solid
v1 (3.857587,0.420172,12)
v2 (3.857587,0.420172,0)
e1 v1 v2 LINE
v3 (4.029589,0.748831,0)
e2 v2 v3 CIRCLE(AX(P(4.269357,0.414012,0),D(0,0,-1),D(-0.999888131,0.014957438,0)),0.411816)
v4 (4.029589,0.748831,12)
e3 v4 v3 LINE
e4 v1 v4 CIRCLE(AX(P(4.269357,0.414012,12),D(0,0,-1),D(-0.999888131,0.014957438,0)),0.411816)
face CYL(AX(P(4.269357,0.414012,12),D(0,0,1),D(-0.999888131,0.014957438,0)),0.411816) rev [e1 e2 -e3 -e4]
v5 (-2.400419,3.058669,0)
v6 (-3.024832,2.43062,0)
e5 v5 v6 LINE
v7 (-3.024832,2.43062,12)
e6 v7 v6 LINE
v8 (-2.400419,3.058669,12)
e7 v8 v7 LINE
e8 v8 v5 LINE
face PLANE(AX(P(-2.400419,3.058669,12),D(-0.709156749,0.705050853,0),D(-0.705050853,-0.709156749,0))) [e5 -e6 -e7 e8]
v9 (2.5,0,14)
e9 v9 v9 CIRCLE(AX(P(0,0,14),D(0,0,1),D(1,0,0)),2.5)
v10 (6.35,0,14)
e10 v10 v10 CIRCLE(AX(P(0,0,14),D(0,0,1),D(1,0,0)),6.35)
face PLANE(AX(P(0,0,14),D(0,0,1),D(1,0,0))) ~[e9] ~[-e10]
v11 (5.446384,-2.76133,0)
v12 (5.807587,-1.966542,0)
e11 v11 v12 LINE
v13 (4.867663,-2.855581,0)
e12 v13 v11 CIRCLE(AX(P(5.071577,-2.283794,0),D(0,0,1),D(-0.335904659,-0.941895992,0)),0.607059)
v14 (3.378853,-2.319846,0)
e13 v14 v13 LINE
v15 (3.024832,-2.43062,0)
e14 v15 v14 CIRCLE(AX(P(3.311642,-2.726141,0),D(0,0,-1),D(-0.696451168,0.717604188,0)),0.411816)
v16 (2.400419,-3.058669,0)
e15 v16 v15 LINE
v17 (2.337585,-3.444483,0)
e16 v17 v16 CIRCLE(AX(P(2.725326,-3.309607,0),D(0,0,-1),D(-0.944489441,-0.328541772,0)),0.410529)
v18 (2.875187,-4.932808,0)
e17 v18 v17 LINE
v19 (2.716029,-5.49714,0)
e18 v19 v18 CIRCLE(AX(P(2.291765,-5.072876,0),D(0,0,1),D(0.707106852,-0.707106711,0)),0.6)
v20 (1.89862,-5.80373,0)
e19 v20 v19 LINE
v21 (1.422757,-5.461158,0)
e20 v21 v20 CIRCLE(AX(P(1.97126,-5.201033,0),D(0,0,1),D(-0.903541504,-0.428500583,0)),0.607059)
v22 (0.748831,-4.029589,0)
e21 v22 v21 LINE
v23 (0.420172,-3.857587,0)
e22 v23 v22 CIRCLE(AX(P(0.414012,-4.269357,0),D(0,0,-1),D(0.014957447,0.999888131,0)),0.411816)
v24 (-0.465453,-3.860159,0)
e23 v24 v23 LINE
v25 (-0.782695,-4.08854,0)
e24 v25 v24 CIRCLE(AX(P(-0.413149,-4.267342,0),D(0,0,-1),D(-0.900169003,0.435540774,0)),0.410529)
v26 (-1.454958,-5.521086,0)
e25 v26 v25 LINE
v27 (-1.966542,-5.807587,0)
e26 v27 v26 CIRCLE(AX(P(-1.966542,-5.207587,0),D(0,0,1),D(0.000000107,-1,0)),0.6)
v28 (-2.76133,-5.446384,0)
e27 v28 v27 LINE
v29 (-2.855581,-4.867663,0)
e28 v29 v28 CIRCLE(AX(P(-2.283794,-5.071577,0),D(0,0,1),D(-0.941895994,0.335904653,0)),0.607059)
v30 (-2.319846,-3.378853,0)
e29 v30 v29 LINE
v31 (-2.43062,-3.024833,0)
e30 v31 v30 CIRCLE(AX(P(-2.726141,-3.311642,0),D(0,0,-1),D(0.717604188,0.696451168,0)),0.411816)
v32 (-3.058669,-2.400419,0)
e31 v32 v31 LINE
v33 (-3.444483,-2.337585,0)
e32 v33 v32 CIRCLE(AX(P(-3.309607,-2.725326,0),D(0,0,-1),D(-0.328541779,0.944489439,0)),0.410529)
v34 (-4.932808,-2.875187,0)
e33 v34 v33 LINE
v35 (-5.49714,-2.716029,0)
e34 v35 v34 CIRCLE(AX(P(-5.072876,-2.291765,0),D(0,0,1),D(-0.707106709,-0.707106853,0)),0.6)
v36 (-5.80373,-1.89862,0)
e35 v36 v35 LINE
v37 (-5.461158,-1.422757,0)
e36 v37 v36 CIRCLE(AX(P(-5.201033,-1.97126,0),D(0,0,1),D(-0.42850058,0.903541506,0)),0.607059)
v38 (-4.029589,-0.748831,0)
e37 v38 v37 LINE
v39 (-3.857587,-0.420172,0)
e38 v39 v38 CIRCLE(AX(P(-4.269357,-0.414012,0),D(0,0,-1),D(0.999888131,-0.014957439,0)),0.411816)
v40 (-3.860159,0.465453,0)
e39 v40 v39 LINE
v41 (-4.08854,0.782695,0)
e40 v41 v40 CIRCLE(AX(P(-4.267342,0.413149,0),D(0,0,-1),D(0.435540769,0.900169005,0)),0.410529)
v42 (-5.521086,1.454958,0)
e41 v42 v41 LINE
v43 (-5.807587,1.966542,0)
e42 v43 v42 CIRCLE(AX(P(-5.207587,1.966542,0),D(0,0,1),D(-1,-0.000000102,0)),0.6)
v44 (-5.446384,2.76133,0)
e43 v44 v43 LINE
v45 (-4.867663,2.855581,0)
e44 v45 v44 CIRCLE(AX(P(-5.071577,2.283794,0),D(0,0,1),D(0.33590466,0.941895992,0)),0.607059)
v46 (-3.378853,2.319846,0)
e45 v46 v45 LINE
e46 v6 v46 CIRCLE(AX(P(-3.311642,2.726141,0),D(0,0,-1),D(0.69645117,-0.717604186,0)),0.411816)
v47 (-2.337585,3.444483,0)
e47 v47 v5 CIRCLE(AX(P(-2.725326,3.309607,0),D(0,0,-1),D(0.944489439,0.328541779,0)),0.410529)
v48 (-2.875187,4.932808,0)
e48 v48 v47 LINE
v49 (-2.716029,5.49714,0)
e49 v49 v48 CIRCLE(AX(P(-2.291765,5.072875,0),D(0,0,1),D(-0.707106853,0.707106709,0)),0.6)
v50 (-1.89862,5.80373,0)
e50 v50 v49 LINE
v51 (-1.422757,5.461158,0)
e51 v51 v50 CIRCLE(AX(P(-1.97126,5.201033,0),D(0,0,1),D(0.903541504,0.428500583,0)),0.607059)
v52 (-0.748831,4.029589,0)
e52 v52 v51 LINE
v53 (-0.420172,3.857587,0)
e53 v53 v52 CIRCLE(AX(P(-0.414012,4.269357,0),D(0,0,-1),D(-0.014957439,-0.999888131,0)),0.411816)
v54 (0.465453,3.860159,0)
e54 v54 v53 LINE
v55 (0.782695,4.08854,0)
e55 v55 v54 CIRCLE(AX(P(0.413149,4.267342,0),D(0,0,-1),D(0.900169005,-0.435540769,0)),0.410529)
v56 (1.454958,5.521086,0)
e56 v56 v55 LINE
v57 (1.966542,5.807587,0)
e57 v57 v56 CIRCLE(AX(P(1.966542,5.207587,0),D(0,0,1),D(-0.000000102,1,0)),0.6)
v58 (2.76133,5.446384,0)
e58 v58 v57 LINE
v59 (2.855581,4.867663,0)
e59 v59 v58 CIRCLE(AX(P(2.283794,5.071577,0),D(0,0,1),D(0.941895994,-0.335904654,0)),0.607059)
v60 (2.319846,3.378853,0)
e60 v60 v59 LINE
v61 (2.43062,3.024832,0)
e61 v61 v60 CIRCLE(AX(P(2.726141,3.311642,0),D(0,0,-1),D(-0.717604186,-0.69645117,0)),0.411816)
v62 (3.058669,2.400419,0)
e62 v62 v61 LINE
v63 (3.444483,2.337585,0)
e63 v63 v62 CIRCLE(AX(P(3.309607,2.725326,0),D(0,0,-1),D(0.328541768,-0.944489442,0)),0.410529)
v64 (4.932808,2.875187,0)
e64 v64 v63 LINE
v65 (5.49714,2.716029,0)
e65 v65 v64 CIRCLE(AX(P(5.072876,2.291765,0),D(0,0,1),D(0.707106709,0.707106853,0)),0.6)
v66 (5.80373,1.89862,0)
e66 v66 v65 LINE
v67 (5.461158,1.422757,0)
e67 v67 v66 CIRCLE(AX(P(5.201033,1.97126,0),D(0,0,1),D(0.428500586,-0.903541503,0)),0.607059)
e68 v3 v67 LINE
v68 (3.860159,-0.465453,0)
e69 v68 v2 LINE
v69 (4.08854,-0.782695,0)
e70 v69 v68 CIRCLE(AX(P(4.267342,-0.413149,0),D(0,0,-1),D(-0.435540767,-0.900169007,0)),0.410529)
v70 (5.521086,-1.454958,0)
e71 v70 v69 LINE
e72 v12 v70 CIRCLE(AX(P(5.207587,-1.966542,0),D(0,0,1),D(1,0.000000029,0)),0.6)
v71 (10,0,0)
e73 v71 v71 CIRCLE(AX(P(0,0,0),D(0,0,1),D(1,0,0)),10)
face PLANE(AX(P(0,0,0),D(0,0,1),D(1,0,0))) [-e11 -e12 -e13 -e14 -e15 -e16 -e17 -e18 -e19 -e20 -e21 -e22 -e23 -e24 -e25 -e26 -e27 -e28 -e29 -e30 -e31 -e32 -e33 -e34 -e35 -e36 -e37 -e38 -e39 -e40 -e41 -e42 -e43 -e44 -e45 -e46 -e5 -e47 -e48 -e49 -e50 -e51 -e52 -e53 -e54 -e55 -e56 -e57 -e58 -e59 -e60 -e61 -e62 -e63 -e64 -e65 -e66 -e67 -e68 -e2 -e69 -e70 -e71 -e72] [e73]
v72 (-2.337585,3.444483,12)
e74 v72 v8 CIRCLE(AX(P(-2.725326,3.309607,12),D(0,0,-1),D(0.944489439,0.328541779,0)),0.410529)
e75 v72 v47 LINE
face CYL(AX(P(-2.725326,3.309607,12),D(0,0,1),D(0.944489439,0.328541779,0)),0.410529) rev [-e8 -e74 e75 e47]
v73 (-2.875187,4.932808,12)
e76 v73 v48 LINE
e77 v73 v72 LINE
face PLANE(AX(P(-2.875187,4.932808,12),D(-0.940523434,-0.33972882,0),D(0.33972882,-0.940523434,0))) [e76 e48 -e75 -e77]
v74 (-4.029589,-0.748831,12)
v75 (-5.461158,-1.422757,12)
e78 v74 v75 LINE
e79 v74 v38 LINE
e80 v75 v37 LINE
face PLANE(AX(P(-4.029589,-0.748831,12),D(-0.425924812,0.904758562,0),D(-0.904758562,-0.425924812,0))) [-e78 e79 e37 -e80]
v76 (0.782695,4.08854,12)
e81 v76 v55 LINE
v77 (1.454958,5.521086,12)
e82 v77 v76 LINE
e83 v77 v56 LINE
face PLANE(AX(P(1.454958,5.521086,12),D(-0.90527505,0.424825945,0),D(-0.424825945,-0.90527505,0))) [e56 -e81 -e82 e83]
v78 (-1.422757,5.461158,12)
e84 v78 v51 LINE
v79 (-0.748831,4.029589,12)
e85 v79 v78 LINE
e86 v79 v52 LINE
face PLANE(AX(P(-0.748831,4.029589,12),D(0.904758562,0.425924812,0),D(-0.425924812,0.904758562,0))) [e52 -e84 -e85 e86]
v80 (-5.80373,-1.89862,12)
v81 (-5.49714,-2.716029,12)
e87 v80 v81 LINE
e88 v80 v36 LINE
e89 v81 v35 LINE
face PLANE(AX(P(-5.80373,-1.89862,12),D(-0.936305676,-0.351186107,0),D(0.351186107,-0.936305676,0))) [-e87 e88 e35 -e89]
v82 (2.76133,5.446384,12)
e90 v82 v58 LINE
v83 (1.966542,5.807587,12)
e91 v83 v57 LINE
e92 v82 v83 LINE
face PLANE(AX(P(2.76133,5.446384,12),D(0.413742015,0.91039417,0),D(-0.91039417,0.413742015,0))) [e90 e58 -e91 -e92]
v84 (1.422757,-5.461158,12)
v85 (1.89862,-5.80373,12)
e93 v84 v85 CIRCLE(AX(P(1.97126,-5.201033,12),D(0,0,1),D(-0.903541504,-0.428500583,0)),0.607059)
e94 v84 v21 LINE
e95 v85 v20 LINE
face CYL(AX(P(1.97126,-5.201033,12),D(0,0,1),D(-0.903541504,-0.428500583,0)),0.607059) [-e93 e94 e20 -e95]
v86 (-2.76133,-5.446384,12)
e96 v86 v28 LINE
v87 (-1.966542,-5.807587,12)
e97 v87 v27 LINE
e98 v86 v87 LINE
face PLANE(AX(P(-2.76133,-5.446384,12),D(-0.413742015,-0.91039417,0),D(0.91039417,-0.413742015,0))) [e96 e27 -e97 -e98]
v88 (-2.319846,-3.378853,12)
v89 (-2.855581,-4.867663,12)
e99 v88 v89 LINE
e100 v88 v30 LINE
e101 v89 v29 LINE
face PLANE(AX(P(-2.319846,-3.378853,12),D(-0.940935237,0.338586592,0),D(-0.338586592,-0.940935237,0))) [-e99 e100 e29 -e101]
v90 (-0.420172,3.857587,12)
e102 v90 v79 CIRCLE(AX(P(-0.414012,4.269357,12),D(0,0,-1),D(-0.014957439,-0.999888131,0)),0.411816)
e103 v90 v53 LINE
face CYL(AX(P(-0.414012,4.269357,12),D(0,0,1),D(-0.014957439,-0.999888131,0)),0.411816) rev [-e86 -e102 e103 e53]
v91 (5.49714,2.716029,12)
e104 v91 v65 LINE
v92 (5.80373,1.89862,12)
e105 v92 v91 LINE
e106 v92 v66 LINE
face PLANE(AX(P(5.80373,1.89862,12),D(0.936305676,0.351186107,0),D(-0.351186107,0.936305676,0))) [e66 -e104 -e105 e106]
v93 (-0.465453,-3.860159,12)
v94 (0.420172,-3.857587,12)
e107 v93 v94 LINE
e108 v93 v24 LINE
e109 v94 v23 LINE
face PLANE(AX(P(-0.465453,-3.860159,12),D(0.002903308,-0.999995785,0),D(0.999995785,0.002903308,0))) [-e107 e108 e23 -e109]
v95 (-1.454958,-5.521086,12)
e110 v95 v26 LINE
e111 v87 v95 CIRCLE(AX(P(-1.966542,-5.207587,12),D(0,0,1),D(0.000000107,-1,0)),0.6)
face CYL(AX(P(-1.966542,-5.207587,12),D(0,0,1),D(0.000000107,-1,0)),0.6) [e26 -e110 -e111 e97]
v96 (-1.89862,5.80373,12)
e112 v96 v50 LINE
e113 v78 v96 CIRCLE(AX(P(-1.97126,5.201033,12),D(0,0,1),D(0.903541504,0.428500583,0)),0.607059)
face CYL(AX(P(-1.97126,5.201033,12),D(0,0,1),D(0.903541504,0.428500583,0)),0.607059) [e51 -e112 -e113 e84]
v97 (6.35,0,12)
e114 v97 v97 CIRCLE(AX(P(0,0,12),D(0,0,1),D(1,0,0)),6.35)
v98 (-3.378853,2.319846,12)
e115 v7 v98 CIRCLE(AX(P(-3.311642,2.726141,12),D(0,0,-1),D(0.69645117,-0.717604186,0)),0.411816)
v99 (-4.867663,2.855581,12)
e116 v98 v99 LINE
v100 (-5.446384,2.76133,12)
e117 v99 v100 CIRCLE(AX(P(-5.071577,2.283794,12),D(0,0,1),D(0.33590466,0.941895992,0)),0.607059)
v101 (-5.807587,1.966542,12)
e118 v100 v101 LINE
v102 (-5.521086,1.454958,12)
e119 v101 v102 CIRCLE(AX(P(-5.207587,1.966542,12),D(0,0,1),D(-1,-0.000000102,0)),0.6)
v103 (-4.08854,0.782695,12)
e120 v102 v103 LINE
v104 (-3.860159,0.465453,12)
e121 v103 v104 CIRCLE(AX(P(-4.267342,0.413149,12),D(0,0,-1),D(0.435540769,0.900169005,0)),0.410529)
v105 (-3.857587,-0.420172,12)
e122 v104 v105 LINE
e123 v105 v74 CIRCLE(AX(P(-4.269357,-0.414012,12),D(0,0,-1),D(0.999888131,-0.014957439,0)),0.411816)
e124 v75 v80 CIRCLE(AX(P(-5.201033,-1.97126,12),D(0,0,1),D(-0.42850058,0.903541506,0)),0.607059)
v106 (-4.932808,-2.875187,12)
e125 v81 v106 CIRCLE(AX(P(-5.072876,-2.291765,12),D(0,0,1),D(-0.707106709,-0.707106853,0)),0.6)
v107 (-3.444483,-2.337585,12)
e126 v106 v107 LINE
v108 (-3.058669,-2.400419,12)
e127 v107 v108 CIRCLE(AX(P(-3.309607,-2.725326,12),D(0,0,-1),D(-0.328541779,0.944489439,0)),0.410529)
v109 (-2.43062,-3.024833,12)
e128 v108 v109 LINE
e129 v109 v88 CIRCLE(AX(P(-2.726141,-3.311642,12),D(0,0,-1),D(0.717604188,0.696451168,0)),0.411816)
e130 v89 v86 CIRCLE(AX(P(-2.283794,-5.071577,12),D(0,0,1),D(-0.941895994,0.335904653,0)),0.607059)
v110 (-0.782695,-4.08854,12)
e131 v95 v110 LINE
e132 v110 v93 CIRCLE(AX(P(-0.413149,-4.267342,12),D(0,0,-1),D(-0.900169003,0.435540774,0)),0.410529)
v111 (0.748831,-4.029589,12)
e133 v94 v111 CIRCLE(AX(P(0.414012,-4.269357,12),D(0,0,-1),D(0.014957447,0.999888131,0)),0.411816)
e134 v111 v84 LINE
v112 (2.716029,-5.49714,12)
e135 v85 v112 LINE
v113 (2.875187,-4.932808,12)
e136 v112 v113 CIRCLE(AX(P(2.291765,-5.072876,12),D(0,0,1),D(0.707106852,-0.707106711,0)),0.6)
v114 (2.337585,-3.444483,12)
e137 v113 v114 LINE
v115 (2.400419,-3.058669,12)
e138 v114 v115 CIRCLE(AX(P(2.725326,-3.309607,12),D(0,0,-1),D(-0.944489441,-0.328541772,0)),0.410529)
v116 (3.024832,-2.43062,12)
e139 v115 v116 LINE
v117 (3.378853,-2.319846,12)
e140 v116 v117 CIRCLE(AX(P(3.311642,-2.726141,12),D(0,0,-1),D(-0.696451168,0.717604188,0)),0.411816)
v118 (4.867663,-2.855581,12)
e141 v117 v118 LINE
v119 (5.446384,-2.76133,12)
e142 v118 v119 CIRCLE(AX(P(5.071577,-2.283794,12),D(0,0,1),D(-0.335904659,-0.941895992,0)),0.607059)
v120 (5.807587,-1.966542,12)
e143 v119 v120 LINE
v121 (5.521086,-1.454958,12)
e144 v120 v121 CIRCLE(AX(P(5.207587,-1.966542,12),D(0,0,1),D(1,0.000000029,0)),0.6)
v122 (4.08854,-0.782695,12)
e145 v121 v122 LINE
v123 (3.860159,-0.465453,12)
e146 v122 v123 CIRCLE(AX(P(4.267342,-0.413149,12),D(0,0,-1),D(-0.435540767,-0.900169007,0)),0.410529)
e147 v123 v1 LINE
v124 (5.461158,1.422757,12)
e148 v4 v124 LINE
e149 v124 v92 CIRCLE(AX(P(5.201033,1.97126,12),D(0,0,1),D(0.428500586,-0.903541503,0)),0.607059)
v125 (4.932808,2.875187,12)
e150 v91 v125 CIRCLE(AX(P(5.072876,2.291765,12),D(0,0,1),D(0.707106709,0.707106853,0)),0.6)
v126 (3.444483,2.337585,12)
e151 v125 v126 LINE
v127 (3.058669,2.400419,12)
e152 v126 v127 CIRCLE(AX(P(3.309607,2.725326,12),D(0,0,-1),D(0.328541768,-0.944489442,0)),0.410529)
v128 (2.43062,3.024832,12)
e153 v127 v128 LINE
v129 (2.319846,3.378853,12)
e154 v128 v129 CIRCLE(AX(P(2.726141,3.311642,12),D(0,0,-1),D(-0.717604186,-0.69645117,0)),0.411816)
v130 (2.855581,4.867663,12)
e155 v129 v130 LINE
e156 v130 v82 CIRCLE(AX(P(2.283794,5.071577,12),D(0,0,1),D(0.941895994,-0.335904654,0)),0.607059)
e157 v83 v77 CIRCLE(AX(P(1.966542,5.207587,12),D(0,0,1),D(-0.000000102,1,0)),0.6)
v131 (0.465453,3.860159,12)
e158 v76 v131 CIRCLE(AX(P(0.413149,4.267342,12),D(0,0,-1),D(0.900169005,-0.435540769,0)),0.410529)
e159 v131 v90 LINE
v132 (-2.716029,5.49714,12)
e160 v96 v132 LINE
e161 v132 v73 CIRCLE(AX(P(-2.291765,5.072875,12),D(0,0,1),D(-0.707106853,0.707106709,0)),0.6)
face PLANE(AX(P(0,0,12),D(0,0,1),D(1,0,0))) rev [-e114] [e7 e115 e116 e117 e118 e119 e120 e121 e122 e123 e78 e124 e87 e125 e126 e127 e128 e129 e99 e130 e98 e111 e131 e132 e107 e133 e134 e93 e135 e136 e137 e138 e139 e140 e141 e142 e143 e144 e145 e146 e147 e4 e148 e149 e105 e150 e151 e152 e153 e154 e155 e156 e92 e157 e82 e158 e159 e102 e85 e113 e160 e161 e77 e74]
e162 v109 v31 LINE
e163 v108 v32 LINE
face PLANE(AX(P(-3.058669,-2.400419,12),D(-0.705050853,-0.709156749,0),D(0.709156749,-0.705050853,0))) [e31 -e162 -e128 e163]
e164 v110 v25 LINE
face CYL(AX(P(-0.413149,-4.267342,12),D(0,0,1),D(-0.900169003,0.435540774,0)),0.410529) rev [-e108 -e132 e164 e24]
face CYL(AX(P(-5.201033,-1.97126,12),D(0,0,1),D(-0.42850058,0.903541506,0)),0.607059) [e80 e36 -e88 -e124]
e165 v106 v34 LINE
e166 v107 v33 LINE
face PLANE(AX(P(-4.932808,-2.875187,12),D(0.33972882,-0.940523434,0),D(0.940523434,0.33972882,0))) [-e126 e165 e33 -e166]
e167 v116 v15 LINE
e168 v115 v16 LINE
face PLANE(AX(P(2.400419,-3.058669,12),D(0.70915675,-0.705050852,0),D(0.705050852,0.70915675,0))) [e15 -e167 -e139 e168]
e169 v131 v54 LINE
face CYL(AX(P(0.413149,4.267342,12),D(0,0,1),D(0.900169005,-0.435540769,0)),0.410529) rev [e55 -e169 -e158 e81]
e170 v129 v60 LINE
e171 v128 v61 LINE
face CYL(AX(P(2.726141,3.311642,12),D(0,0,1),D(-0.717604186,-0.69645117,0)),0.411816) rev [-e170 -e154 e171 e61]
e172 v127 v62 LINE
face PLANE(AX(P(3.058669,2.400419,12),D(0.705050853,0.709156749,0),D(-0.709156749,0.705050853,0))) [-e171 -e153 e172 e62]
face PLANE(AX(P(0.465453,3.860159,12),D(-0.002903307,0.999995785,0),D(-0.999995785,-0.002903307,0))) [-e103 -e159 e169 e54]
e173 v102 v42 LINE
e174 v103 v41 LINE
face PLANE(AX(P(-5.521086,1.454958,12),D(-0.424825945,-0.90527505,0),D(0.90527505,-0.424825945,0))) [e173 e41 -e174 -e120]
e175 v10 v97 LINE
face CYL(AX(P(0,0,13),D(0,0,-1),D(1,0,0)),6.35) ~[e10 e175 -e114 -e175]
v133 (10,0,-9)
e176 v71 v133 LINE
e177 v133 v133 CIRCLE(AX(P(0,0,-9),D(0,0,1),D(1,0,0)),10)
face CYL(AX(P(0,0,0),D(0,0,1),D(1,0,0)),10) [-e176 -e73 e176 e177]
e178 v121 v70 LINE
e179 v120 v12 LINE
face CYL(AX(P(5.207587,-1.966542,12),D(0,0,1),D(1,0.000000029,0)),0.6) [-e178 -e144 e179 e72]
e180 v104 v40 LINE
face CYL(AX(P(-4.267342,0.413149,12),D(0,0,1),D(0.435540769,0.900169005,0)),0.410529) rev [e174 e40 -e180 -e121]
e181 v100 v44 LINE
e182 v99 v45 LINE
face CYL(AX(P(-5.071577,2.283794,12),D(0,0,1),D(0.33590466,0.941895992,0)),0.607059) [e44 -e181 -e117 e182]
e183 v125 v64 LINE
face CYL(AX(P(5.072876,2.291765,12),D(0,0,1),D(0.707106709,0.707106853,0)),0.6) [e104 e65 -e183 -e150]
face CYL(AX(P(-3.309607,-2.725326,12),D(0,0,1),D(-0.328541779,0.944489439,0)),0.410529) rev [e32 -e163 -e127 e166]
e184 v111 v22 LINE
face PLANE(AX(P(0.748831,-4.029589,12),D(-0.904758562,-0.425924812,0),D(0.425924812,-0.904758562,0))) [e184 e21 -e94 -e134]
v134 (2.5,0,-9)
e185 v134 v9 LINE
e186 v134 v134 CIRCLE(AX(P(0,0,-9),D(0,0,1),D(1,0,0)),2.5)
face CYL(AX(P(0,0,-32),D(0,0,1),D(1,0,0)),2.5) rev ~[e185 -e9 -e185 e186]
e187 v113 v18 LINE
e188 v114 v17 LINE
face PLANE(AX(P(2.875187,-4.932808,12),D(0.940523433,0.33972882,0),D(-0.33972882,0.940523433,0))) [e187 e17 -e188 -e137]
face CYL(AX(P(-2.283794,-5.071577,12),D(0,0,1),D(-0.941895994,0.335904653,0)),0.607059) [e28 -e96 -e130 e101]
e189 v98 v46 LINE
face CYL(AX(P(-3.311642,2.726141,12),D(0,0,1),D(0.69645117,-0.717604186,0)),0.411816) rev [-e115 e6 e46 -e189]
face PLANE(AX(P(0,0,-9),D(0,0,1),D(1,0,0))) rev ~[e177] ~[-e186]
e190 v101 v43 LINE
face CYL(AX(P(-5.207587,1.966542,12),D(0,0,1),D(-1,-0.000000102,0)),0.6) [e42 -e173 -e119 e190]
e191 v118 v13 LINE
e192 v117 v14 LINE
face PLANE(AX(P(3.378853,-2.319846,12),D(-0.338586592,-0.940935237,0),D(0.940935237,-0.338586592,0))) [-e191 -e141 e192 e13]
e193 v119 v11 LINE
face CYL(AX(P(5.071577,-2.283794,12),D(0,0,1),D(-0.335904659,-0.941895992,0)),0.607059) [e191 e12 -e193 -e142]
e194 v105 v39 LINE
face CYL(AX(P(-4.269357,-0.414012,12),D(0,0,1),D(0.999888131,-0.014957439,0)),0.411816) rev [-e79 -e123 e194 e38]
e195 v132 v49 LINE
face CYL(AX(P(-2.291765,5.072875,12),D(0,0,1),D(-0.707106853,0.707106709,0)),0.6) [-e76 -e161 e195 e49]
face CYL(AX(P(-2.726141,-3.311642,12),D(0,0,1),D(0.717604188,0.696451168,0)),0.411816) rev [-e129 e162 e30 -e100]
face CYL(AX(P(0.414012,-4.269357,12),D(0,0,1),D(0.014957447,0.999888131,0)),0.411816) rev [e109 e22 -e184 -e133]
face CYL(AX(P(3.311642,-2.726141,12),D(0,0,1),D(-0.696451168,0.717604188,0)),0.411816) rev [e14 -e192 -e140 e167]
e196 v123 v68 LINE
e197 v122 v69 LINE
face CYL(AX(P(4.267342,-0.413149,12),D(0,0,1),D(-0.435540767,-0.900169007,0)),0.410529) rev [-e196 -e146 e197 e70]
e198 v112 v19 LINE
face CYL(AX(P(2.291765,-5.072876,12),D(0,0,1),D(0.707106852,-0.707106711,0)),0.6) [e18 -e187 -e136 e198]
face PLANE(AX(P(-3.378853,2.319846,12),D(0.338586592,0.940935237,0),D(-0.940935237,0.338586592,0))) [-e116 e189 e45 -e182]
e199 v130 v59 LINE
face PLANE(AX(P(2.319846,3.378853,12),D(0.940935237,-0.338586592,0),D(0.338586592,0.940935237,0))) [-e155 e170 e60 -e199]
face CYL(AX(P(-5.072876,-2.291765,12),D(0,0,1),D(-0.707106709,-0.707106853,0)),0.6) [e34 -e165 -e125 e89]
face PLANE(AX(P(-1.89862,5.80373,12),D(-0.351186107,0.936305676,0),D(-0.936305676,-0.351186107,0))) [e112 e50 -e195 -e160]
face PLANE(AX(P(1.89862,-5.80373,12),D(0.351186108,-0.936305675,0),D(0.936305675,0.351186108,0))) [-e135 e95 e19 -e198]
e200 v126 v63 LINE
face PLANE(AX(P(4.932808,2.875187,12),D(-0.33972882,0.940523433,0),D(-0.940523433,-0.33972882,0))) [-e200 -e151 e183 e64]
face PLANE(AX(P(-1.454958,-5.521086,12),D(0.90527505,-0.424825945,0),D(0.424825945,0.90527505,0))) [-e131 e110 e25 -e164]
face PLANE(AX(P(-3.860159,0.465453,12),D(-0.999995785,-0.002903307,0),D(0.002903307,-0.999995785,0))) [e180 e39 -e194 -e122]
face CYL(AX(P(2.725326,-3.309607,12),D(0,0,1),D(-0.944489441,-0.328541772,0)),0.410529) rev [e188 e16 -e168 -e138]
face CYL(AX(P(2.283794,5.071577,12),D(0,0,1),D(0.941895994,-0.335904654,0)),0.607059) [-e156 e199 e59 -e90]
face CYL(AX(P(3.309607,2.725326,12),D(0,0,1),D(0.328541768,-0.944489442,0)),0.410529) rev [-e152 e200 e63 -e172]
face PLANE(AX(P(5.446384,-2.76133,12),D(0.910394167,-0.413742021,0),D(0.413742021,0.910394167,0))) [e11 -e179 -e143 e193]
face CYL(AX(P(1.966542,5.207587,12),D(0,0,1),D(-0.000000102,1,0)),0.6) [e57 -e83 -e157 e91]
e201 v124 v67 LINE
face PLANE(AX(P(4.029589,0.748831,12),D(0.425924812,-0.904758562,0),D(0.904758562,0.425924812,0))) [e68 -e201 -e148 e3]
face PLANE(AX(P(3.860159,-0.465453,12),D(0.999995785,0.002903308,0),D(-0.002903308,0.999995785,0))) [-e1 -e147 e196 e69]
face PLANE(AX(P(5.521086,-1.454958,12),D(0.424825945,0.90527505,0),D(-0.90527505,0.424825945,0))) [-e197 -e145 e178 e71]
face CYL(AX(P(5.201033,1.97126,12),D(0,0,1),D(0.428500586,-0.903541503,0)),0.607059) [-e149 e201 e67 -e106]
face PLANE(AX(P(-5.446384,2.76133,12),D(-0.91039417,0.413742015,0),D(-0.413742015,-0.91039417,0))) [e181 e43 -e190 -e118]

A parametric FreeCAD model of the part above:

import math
import FreeCAD as App
import Part
import Sketcher
from FreeCAD import Vector
Q = App.Units.Quantity

doc = App.newDocument("Part")
body = doc.addObject("PartDesign::Body", "Body")

# Sketch on XZ plane
sketch1 = body.newObject("Sketcher::SketchObject", "Sketch")
sketch1.AttachmentSupport = (doc.getObject("XZ_Plane"), [""])
sketch1.MapMode = "FlatFace"
sketch1.addGeometry(Part.LineSegment(Vector(0, 12, 0), Vector(0, 14, 0)), False)
sketch1.addGeometry(Part.LineSegment(Vector(0, 14, 0), Vector(6.3, 14, 0)), False)
sketch1.addGeometry(Part.LineSegment(Vector(6.3, 14, 0), Vector(6.3, 12, 0)), False)
sketch1.addGeometry(Part.LineSegment(Vector(6.3, 12, 0), Vector(0, 12, 0)), False)
sketch1.addConstraint(Sketcher.Constraint("Coincident", 0, 2, 1, 1))
sketch1.addConstraint(Sketcher.Constraint("Coincident", 1, 2, 2, 1))
sketch1.addConstraint(Sketcher.Constraint("Coincident", 2, 2, 3, 1))
sketch1.addConstraint(Sketcher.Constraint("Coincident", 3, 2, 0, 1))
sketch1.addConstraint(Sketcher.Constraint("Vertical", 0))
sketch1.addConstraint(Sketcher.Constraint("Horizontal", 1))
sketch1.addConstraint(Sketcher.Constraint("Vertical", 2))
sketch1.addConstraint(Sketcher.Constraint("Horizontal", 3))
sketch1.addConstraint(Sketcher.Constraint("PointOnObject", 0, 2, -2))
sketch1.addConstraint(Sketcher.Constraint("DistanceY", 0, 1, 0, 2, Q("2 mm")))
sketch1.addConstraint(Sketcher.Constraint("DistanceY", -1, 1, 0, 2, Q("14 mm")))
sketch1.addConstraint(Sketcher.Constraint("DistanceX", 1, 1, 1, 2, Q("6.35 mm")))
revolution = body.newObject("PartDesign::Revolution", "Revolution")
revolution.Profile = sketch1
revolution.ReferenceAxis = (sketch1, ["V_Axis"])
revolution.Angle = 360

# Sketch on XY plane
sketch2 = body.newObject("Sketcher::SketchObject", "Sketch001")
sketch2.AttachmentSupport = (doc.getObject("XY_Plane"), [""])
sketch2.MapMode = "FlatFace"
sketch2.AttachmentOffset = App.Placement(Vector(0, 0, 12), App.Rotation())
sketch2.addGeometry(Part.LineSegment(Vector(2.34, -3.44, 0), Vector(2.88, -4.93, 0)), False)
sketch2.addGeometry(Part.ArcOfCircle(Part.Circle(Vector(2.29, -5.07, 0), Vector(0, 0, 1), 0.6), math.radians(-45), math.radians(14)), False)
sketch2.addGeometry(Part.LineSegment(Vector(2.72, -5.5, 0), Vector(1.9, -5.8, 0)), False)
sketch2.addGeometry(Part.ArcOfCircle(Part.Circle(Vector(1.97, -5.2, 0), Vector(0, 0, 1), 0.61), math.radians(-155), math.radians(-97)), False)
sketch2.addGeometry(Part.LineSegment(Vector(1.42, -5.46, 0), Vector(0.75, -4.03, 0)), False)
sketch2.addGeometry(Part.ArcOfCircle(Part.Circle(Vector(0.41, -4.27, 0), Vector(0, 0, 1), 0.41), math.radians(36), math.radians(89)), False)
sketch2.addGeometry(Part.LineSegment(Vector(0.42, -3.86, 0), Vector(-0.47, -3.86, 0)), False)
sketch2.addGeometry(Part.ArcOfCircle(Part.Circle(Vector(-0.41, -4.27, 0), Vector(0, 0, 1), 0.41), math.radians(97), math.radians(154)), False)
sketch2.addGeometry(Part.LineSegment(Vector(-0.78, -4.09, 0), Vector(-1.45, -5.52, 0)), False)
sketch2.addGeometry(Part.ArcOfCircle(Part.Circle(Vector(-1.97, -5.21, 0), Vector(0, 0, 1), 0.6), math.radians(-90), math.radians(-31)), False)
sketch2.addGeometry(Part.LineSegment(Vector(-1.97, -5.81, 0), Vector(-2.76, -5.45, 0)), False)
sketch2.addGeometry(Part.ArcOfCircle(Part.Circle(Vector(-2.28, -5.07, 0), Vector(0, 0, 1), 0.61), math.radians(160), math.radians(218)), False)
sketch2.addGeometry(Part.LineSegment(Vector(-2.86, -4.87, 0), Vector(-2.32, -3.38, 0)), False)
sketch2.addGeometry(Part.ArcOfCircle(Part.Circle(Vector(-2.73, -3.31, 0), Vector(0, 0, 1), 0.41), math.radians(-9), math.radians(44)), False)
sketch2.addGeometry(Part.LineSegment(Vector(-2.43, -3.02, 0), Vector(-3.06, -2.4, 0)), False)
sketch2.addGeometry(Part.ArcOfCircle(Part.Circle(Vector(-3.31, -2.73, 0), Vector(0, 0, 1), 0.41), math.radians(52), math.radians(109)), False)
sketch2.addGeometry(Part.LineSegment(Vector(-3.44, -2.34, 0), Vector(-4.93, -2.88, 0)), False)
sketch2.addGeometry(Part.ArcOfCircle(Part.Circle(Vector(-5.07, -2.29, 0), Vector(0, 0, 1), 0.6), math.radians(-135), math.radians(-76)), False)
sketch2.addGeometry(Part.LineSegment(Vector(-5.5, -2.72, 0), Vector(-5.8, -1.9, 0)), False)
sketch2.addGeometry(Part.ArcOfCircle(Part.Circle(Vector(-5.2, -1.97, 0), Vector(0, 0, 1), 0.61), math.radians(115), math.radians(173)), False)
sketch2.addGeometry(Part.LineSegment(Vector(-5.46, -1.42, 0), Vector(-4.03, -0.75, 0)), False)
sketch2.addGeometry(Part.ArcOfCircle(Part.Circle(Vector(-4.27, -0.41, 0), Vector(0, 0, 1), 0.41), math.radians(-54), math.radians(-1)), False)
sketch2.addGeometry(Part.LineSegment(Vector(-3.86, -0.42, 0), Vector(-3.86, 0.47, 0)), False)
sketch2.addGeometry(Part.ArcOfCircle(Part.Circle(Vector(-4.27, 0.41, 0), Vector(0, 0, 1), 0.41), math.radians(7), math.radians(64)), False)
sketch2.addGeometry(Part.LineSegment(Vector(-4.09, 0.78, 0), Vector(-5.52, 1.45, 0)), False)
sketch2.addGeometry(Part.ArcOfCircle(Part.Circle(Vector(-5.21, 1.97, 0), Vector(0, 0, 1), 0.6), math.radians(-180), math.radians(-121)), False)
sketch2.addGeometry(Part.LineSegment(Vector(-5.81, 1.97, 0), Vector(-5.45, 2.76, 0)), False)
sketch2.addGeometry(Part.ArcOfCircle(Part.Circle(Vector(-5.07, 2.28, 0), Vector(0, 0, 1), 0.61), math.radians(70), math.radians(128)), False)
sketch2.addGeometry(Part.LineSegment(Vector(-4.87, 2.86, 0), Vector(-3.38, 2.32, 0)), False)
sketch2.addGeometry(Part.ArcOfCircle(Part.Circle(Vector(-3.31, 2.73, 0), Vector(0, 0, 1), 0.41), math.radians(-99), math.radians(-46)), False)
sketch2.addGeometry(Part.LineSegment(Vector(-3.02, 2.43, 0), Vector(-2.4, 3.06, 0)), False)
sketch2.addGeometry(Part.ArcOfCircle(Part.Circle(Vector(-2.73, 3.31, 0), Vector(0, 0, 1), 0.41), math.radians(-38), math.radians(19)), False)
sketch2.addGeometry(Part.LineSegment(Vector(-2.34, 3.44, 0), Vector(-2.88, 4.93, 0)), False)
sketch2.addGeometry(Part.ArcOfCircle(Part.Circle(Vector(-2.29, 5.07, 0), Vector(0, 0, 1), 0.6), math.radians(135), math.radians(194)), False)
sketch2.addGeometry(Part.LineSegment(Vector(-2.72, 5.5, 0), Vector(-1.9, 5.8, 0)), False)
sketch2.addGeometry(Part.ArcOfCircle(Part.Circle(Vector(-1.97, 5.2, 0), Vector(0, 0, 1), 0.61), math.radians(25), math.radians(83)), False)
sketch2.addGeometry(Part.LineSegment(Vector(-1.42, 5.46, 0), Vector(-0.75, 4.03, 0)), False)
sketch2.addGeometry(Part.ArcOfCircle(Part.Circle(Vector(-0.41, 4.27, 0), Vector(0, 0, 1), 0.41), math.radians(-144), math.radians(-91)), False)
sketch2.addGeometry(Part.LineSegment(Vector(-0.42, 3.86, 0), Vector(0.47, 3.86, 0)), False)
sketch2.addGeometry(Part.ArcOfCircle(Part.Circle(Vector(0.41, 4.27, 0), Vector(0, 0, 1), 0.41), math.radians(-83), math.radians(-26)), False)
sketch2.addGeometry(Part.LineSegment(Vector(0.78, 4.09, 0), Vector(1.45, 5.52, 0)), False)
sketch2.addGeometry(Part.ArcOfCircle(Part.Circle(Vector(1.97, 5.21, 0), Vector(0, 0, 1), 0.6), math.radians(90), math.radians(149)), False)
sketch2.addGeometry(Part.LineSegment(Vector(1.97, 5.81, 0), Vector(2.76, 5.45, 0)), False)
sketch2.addGeometry(Part.ArcOfCircle(Part.Circle(Vector(2.28, 5.07, 0), Vector(0, 0, 1), 0.61), math.radians(-20), math.radians(38)), False)
sketch2.addGeometry(Part.LineSegment(Vector(2.86, 4.87, 0), Vector(2.32, 3.38, 0)), False)
sketch2.addGeometry(Part.ArcOfCircle(Part.Circle(Vector(2.73, 3.31, 0), Vector(0, 0, 1), 0.41), math.radians(171), math.radians(224)), False)
sketch2.addGeometry(Part.LineSegment(Vector(2.43, 3.02, 0), Vector(3.06, 2.4, 0)), False)
sketch2.addGeometry(Part.ArcOfCircle(Part.Circle(Vector(3.31, 2.73, 0), Vector(0, 0, 1), 0.41), math.radians(-128), math.radians(-71)), False)
sketch2.addGeometry(Part.LineSegment(Vector(3.44, 2.34, 0), Vector(4.93, 2.88, 0)), False)
sketch2.addGeometry(Part.ArcOfCircle(Part.Circle(Vector(5.07, 2.29, 0), Vector(0, 0, 1), 0.6), math.radians(45), math.radians(104)), False)
sketch2.addGeometry(Part.LineSegment(Vector(5.5, 2.72, 0), Vector(5.8, 1.9, 0)), False)
sketch2.addGeometry(Part.ArcOfCircle(Part.Circle(Vector(5.2, 1.97, 0), Vector(0, 0, 1), 0.61), math.radians(-65), math.radians(-7)), False)
sketch2.addGeometry(Part.LineSegment(Vector(5.46, 1.42, 0), Vector(4.03, 0.75, 0)), False)
sketch2.addGeometry(Part.ArcOfCircle(Part.Circle(Vector(4.27, 0.41, 0), Vector(0, 0, 1), 0.41), math.radians(126), math.radians(179)), False)
sketch2.addGeometry(Part.LineSegment(Vector(3.86, 0.42, 0), Vector(3.86, -0.47, 0)), False)
sketch2.addGeometry(Part.ArcOfCircle(Part.Circle(Vector(4.27, -0.41, 0), Vector(0, 0, 1), 0.41), math.radians(-173), math.radians(-116)), False)
sketch2.addGeometry(Part.LineSegment(Vector(4.09, -0.78, 0), Vector(5.52, -1.45, 0)), False)
sketch2.addGeometry(Part.ArcOfCircle(Part.Circle(Vector(5.21, -1.97, 0), Vector(0, 0, 1), 0.6), math.radians(0), math.radians(58)), False)
sketch2.addGeometry(Part.LineSegment(Vector(5.81, -1.97, 0), Vector(5.45, -2.76, 0)), False)
sketch2.addGeometry(Part.ArcOfCircle(Part.Circle(Vector(5.07, -2.28, 0), Vector(0, 0, 1), 0.61), math.radians(-110), math.radians(-52)), False)
sketch2.addGeometry(Part.LineSegment(Vector(4.87, -2.86, 0), Vector(3.38, -2.32, 0)), False)
sketch2.addGeometry(Part.ArcOfCircle(Part.Circle(Vector(3.31, -2.73, 0), Vector(0, 0, 1), 0.41), math.radians(81), math.radians(134)), False)
sketch2.addGeometry(Part.LineSegment(Vector(3.02, -2.43, 0), Vector(2.4, -3.06, 0)), False)
sketch2.addGeometry(Part.ArcOfCircle(Part.Circle(Vector(2.73, -3.31, 0), Vector(0, 0, 1), 0.41), math.radians(142), math.radians(199)), False)
sketch2.addConstraint(Sketcher.Constraint("Coincident", 0, 2, 1, 2))
sketch2.addConstraint(Sketcher.Constraint("Coincident", 1, 1, 2, 1))
sketch2.addConstraint(Sketcher.Constraint("Coincident", 2, 2, 3, 2))
sketch2.addConstraint(Sketcher.Constraint("Coincident", 3, 1, 4, 1))
sketch2.addConstraint(Sketcher.Constraint("Coincident", 4, 2, 5, 1))
sketch2.addConstraint(Sketcher.Constraint("Coincident", 5, 2, 6, 1))
sketch2.addConstraint(Sketcher.Constraint("Coincident", 6, 2, 7, 1))
sketch2.addConstraint(Sketcher.Constraint("Coincident", 7, 2, 8, 1))
sketch2.addConstraint(Sketcher.Constraint("Coincident", 8, 2, 9, 2))
sketch2.addConstraint(Sketcher.Constraint("Coincident", 9, 1, 10, 1))
sketch2.addConstraint(Sketcher.Constraint("Coincident", 10, 2, 11, 2))
sketch2.addConstraint(Sketcher.Constraint("Coincident", 11, 1, 12, 1))
sketch2.addConstraint(Sketcher.Constraint("Coincident", 12, 2, 13, 1))
sketch2.addConstraint(Sketcher.Constraint("Coincident", 13, 2, 14, 1))
sketch2.addConstraint(Sketcher.Constraint("Coincident", 14, 2, 15, 1))
sketch2.addConstraint(Sketcher.Constraint("Coincident", 15, 2, 16, 1))
sketch2.addConstraint(Sketcher.Constraint("Coincident", 16, 2, 17, 2))
sketch2.addConstraint(Sketcher.Constraint("Coincident", 17, 1, 18, 1))
sketch2.addConstraint(Sketcher.Constraint("Coincident", 18, 2, 19, 2))
sketch2.addConstraint(Sketcher.Constraint("Coincident", 19, 1, 20, 1))
sketch2.addConstraint(Sketcher.Constraint("Coincident", 20, 2, 21, 1))
sketch2.addConstraint(Sketcher.Constraint("Coincident", 21, 2, 22, 1))
sketch2.addConstraint(Sketcher.Constraint("Coincident", 22, 2, 23, 1))
sketch2.addConstraint(Sketcher.Constraint("Coincident", 23, 2, 24, 1))
sketch2.addConstraint(Sketcher.Constraint("Coincident", 24, 2, 25, 2))
sketch2.addConstraint(Sketcher.Constraint("Coincident", 25, 1, 26, 1))
sketch2.addConstraint(Sketcher.Constraint("Coincident", 26, 2, 27, 2))
sketch2.addConstraint(Sketcher.Constraint("Coincident", 27, 1, 28, 1))
sketch2.addConstraint(Sketcher.Constraint("Coincident", 28, 2, 29, 1))
sketch2.addConstraint(Sketcher.Constraint("Coincident", 29, 2, 30, 1))
sketch2.addConstraint(Sketcher.Constraint("Coincident", 30, 2, 31, 1))
sketch2.addConstraint(Sketcher.Constraint("Coincident", 31, 2, 32, 1))
sketch2.addConstraint(Sketcher.Constraint("Coincident", 32, 2, 33, 2))
sketch2.addConstraint(Sketcher.Constraint("Coincident", 33, 1, 34, 1))
sketch2.addConstraint(Sketcher.Constraint("Coincident", 34, 2, 35, 2))
sketch2.addConstraint(Sketcher.Constraint("Coincident", 35, 1, 36, 1))
sketch2.addConstraint(Sketcher.Constraint("Coincident", 36, 2, 37, 1))
sketch2.addConstraint(Sketcher.Constraint("Coincident", 37, 2, 38, 1))
sketch2.addConstraint(Sketcher.Constraint("Coincident", 38, 2, 39, 1))
sketch2.addConstraint(Sketcher.Constraint("Coincident", 39, 2, 40, 1))
sketch2.addConstraint(Sketcher.Constraint("Coincident", 40, 2, 41, 2))
sketch2.addConstraint(Sketcher.Constraint("Coincident", 41, 1, 42, 1))
sketch2.addConstraint(Sketcher.Constraint("Coincident", 42, 2, 43, 2))
sketch2.addConstraint(Sketcher.Constraint("Coincident", 43, 1, 44, 1))
sketch2.addConstraint(Sketcher.Constraint("Coincident", 44, 2, 45, 1))
sketch2.addConstraint(Sketcher.Constraint("Coincident", 45, 2, 46, 1))
sketch2.addConstraint(Sketcher.Constraint("Coincident", 46, 2, 47, 1))
sketch2.addConstraint(Sketcher.Constraint("Coincident", 47, 2, 48, 1))
sketch2.addConstraint(Sketcher.Constraint("Coincident", 48, 2, 49, 2))
sketch2.addConstraint(Sketcher.Constraint("Coincident", 49, 1, 50, 1))
sketch2.addConstraint(Sketcher.Constraint("Coincident", 50, 2, 51, 2))
sketch2.addConstraint(Sketcher.Constraint("Coincident", 51, 1, 52, 1))
sketch2.addConstraint(Sketcher.Constraint("Coincident", 52, 2, 53, 1))
sketch2.addConstraint(Sketcher.Constraint("Coincident", 53, 2, 54, 1))
sketch2.addConstraint(Sketcher.Constraint("Coincident", 54, 2, 55, 1))
sketch2.addConstraint(Sketcher.Constraint("Coincident", 55, 2, 56, 1))
sketch2.addConstraint(Sketcher.Constraint("Coincident", 56, 2, 57, 2))
sketch2.addConstraint(Sketcher.Constraint("Coincident", 57, 1, 58, 1))
sketch2.addConstraint(Sketcher.Constraint("Coincident", 58, 2, 59, 2))
sketch2.addConstraint(Sketcher.Constraint("Coincident", 59, 1, 60, 1))
sketch2.addConstraint(Sketcher.Constraint("Coincident", 60, 2, 61, 1))
sketch2.addConstraint(Sketcher.Constraint("Coincident", 61, 2, 62, 1))
sketch2.addConstraint(Sketcher.Constraint("Coincident", 62, 2, 63, 1))
sketch2.addConstraint(Sketcher.Constraint("Coincident", 63, 2, 0, 1))
sketch2.addConstraint(Sketcher.Constraint("Equal", 1, 9))
sketch2.addConstraint(Sketcher.Constraint("Equal", 3, 11))
sketch2.addConstraint(Sketcher.Constraint("Equal", 5, 13))
sketch2.addConstraint(Sketcher.Constraint("Equal", 7, 15))
sketch2.addConstraint(Sketcher.Constraint("Equal", 9, 17))
sketch2.addConstraint(Sketcher.Constraint("Equal", 11, 19))
sketch2.addConstraint(Sketcher.Constraint("Equal", 13, 21))
sketch2.addConstraint(Sketcher.Constraint("Equal", 15, 23))
sketch2.addConstraint(Sketcher.Constraint("Equal", 17, 25))
sketch2.addConstraint(Sketcher.Constraint("Equal", 19, 27))
sketch2.addConstraint(Sketcher.Constraint("Equal", 21, 29))
sketch2.addConstraint(Sketcher.Constraint("Equal", 23, 31))
sketch2.addConstraint(Sketcher.Constraint("Equal", 25, 33))
sketch2.addConstraint(Sketcher.Constraint("Equal", 27, 35))
sketch2.addConstraint(Sketcher.Constraint("Equal", 29, 37))
sketch2.addConstraint(Sketcher.Constraint("Equal", 31, 39))
sketch2.addConstraint(Sketcher.Constraint("Equal", 33, 41))
sketch2.addConstraint(Sketcher.Constraint("Equal", 35, 43))
sketch2.addConstraint(Sketcher.Constraint("Equal", 37, 45))
sketch2.addConstraint(Sketcher.Constraint("Equal", 39, 47))
sketch2.addConstraint(Sketcher.Constraint("Equal", 41, 49))
sketch2.addConstraint(Sketcher.Constraint("Equal", 43, 51))
sketch2.addConstraint(Sketcher.Constraint("Equal", 45, 53))
sketch2.addConstraint(Sketcher.Constraint("Equal", 47, 55))
sketch2.addConstraint(Sketcher.Constraint("Equal", 49, 57))
sketch2.addConstraint(Sketcher.Constraint("Equal", 51, 59))
sketch2.addConstraint(Sketcher.Constraint("Equal", 53, 61))
sketch2.addConstraint(Sketcher.Constraint("Equal", 55, 63))
sketch2.addConstraint(Sketcher.Constraint("Symmetric", 1, 3, 33, 3, -1, 1))
sketch2.addConstraint(Sketcher.Constraint("Symmetric", 3, 3, 35, 3, -1, 1))
sketch2.addConstraint(Sketcher.Constraint("Symmetric", 5, 3, 37, 3, -1, 1))
sketch2.addConstraint(Sketcher.Constraint("Symmetric", 7, 3, 39, 3, -1, 1))
sketch2.addConstraint(Sketcher.Constraint("Symmetric", 9, 3, 41, 3, -1, 1))
sketch2.addConstraint(Sketcher.Constraint("Symmetric", 11, 3, 43, 3, -1, 1))
sketch2.addConstraint(Sketcher.Constraint("Symmetric", 13, 3, 45, 3, -1, 1))
sketch2.addConstraint(Sketcher.Constraint("Symmetric", 15, 3, 47, 3, -1, 1))
sketch2.addConstraint(Sketcher.Constraint("Symmetric", 17, 3, 49, 3, -1, 1))
sketch2.addConstraint(Sketcher.Constraint("Symmetric", 19, 3, 51, 3, -1, 1))
sketch2.addConstraint(Sketcher.Constraint("Symmetric", 21, 3, 53, 3, -1, 1))
sketch2.addConstraint(Sketcher.Constraint("Symmetric", 23, 3, 55, 3, -1, 1))
sketch2.addConstraint(Sketcher.Constraint("Symmetric", 25, 3, 57, 3, -1, 1))
sketch2.addConstraint(Sketcher.Constraint("Symmetric", 27, 3, 59, 3, -1, 1))
sketch2.addConstraint(Sketcher.Constraint("Symmetric", 29, 3, 61, 3, -1, 1))
sketch2.addConstraint(Sketcher.Constraint("Symmetric", 31, 3, 63, 3, -1, 1))
sketch2.addConstraint(Sketcher.Constraint("Perpendicular", 0, 16))
sketch2.addConstraint(Sketcher.Constraint("Perpendicular", 2, 18))
sketch2.addConstraint(Sketcher.Constraint("Perpendicular", 4, 20))
sketch2.addConstraint(Sketcher.Constraint("Perpendicular", 6, 22))
sketch2.addConstraint(Sketcher.Constraint("Perpendicular", 8, 24))
sketch2.addConstraint(Sketcher.Constraint("Perpendicular", 10, 26))
sketch2.addConstraint(Sketcher.Constraint("Perpendicular", 12, 28))
sketch2.addConstraint(Sketcher.Constraint("Perpendicular", 14, 30))
sketch2.addConstraint(Sketcher.Constraint("Perpendicular", 16, 32))
sketch2.addConstraint(Sketcher.Constraint("Perpendicular", 18, 34))
sketch2.addConstraint(Sketcher.Constraint("Perpendicular", 20, 36))
sketch2.addConstraint(Sketcher.Constraint("Perpendicular", 22, 38))
sketch2.addConstraint(Sketcher.Constraint("Perpendicular", 24, 40))
sketch2.addConstraint(Sketcher.Constraint("Perpendicular", 26, 42))
sketch2.addConstraint(Sketcher.Constraint("Perpendicular", 28, 44))
sketch2.addConstraint(Sketcher.Constraint("Perpendicular", 30, 46))
sketch2.addConstraint(Sketcher.Constraint("Perpendicular", 32, 48))
sketch2.addConstraint(Sketcher.Constraint("Perpendicular", 34, 50))
sketch2.addConstraint(Sketcher.Constraint("Perpendicular", 36, 52))
sketch2.addConstraint(Sketcher.Constraint("Perpendicular", 38, 54))
sketch2.addConstraint(Sketcher.Constraint("Perpendicular", 40, 56))
sketch2.addConstraint(Sketcher.Constraint("Perpendicular", 42, 58))
sketch2.addConstraint(Sketcher.Constraint("Perpendicular", 44, 60))
sketch2.addConstraint(Sketcher.Constraint("Perpendicular", 46, 62))
sketch2.addConstraint(Sketcher.Constraint("Equal", 0, 8))
sketch2.addConstraint(Sketcher.Constraint("Equal", 2, 10))
sketch2.addConstraint(Sketcher.Constraint("Equal", 4, 12))
sketch2.addConstraint(Sketcher.Constraint("Equal", 6, 14))
sketch2.addConstraint(Sketcher.Constraint("Equal", 8, 16))
sketch2.addConstraint(Sketcher.Constraint("Equal", 10, 18))
sketch2.addConstraint(Sketcher.Constraint("Equal", 12, 20))
sketch2.addConstraint(Sketcher.Constraint("Equal", 14, 22))
sketch2.addConstraint(Sketcher.Constraint("Equal", 16, 24))
sketch2.addConstraint(Sketcher.Constraint("Equal", 18, 26))
sketch2.addConstraint(Sketcher.Constraint("Equal", 20, 28))
sketch2.addConstraint(Sketcher.Constraint("Equal", 22, 30))
sketch2.addConstraint(Sketcher.Constraint("Equal", 24, 32))
sketch2.addConstraint(Sketcher.Constraint("Equal", 26, 34))
sketch2.addConstraint(Sketcher.Constraint("Equal", 28, 36))
sketch2.addConstraint(Sketcher.Constraint("Equal", 30, 38))
sketch2.addConstraint(Sketcher.Constraint("Equal", 32, 40))
sketch2.addConstraint(Sketcher.Constraint("Equal", 34, 42))
sketch2.addConstraint(Sketcher.Constraint("Equal", 36, 44))
sketch2.addConstraint(Sketcher.Constraint("Equal", 38, 46))
sketch2.addConstraint(Sketcher.Constraint("Equal", 40, 48))
sketch2.addConstraint(Sketcher.Constraint("Equal", 42, 50))
sketch2.addConstraint(Sketcher.Constraint("Equal", 44, 52))
sketch2.addConstraint(Sketcher.Constraint("Equal", 46, 54))
sketch2.addConstraint(Sketcher.Constraint("Equal", 48, 56))
sketch2.addConstraint(Sketcher.Constraint("Equal", 50, 58))
sketch2.addConstraint(Sketcher.Constraint("Equal", 52, 60))
sketch2.addConstraint(Sketcher.Constraint("Equal", 54, 62))
sketch2.addConstraint(Sketcher.Constraint("Radius", 1, Q("0.6 mm")))
sketch2.addConstraint(Sketcher.Constraint("Radius", 3, Q("0.607059 mm")))
sketch2.addConstraint(Sketcher.Constraint("Radius", 7, Q("0.410529 mm")))
sketch2.addConstraint(Sketcher.Constraint("Radius", 5, Q("0.411816 mm")))
sketch2.addConstraint(Sketcher.Constraint("Distance", 6, Q("0.885629 mm")))
sketch2.addConstraint(Sketcher.Constraint("DistanceX", -1, 1, 3, 3, Q("1.97126 mm")))
sketch2.addConstraint(Sketcher.Constraint("DistanceX", 7, 3, -1, 1, Q("0.413149 mm")))
sketch2.addConstraint(Sketcher.Constraint("DistanceX", 13, 3, -1, 1, Q("2.726141 mm")))
sketch2.addConstraint(Sketcher.Constraint("DistanceY", 19, 3, -1, 1, Q("1.97126 mm")))
sketch2.addConstraint(Sketcher.Constraint("DistanceY", -1, 1, 23, 3, Q("0.413149 mm")))
sketch2.addConstraint(Sketcher.Constraint("DistanceY", -1, 1, 29, 3, Q("2.726141 mm")))
sketch2.addConstraint(Sketcher.Constraint("DistanceY", 0, 2, -1, 1, Q("4.932808 mm")))
sketch2.addConstraint(Sketcher.Constraint("DistanceX", -1, 1, 1, 1, Q("2.716029 mm")))
sketch2.addConstraint(Sketcher.Constraint("DistanceY", 1, 1, -1, 1, Q("5.49714 mm")))
sketch2.addConstraint(Sketcher.Constraint("DistanceX", -1, 1, 2, 2, Q("1.89862 mm")))
sketch2.addConstraint(Sketcher.Constraint("DistanceY", 2, 2, -1, 1, Q("5.80373 mm")))
sketch2.addConstraint(Sketcher.Constraint("DistanceY", 3, 1, -1, 1, Q("5.461158 mm")))
sketch2.addConstraint(Sketcher.Constraint("DistanceX", -1, 1, 4, 2, Q("0.748831 mm")))
sketch2.addConstraint(Sketcher.Constraint("DistanceY", 4, 2, -1, 1, Q("4.029589 mm")))
sketch2.addConstraint(Sketcher.Constraint("DistanceX", -1, 1, 5, 2, Q("0.420172 mm")))
sketch2.addConstraint(Sketcher.Constraint("DistanceY", 6, 2, -1, 1, Q("3.860159 mm")))
sketch2.addConstraint(Sketcher.Constraint("DistanceY", 7, 2, -1, 1, Q("4.08854 mm")))
sketch2.addConstraint(Sketcher.Constraint("DistanceX", 8, 2, -1, 1, Q("1.454958 mm")))
sketch2.addConstraint(Sketcher.Constraint("DistanceX", 10, 2, -1, 1, Q("2.76133 mm")))
sketch2.addConstraint(Sketcher.Constraint("DistanceX", 11, 1, -1, 1, Q("2.855581 mm")))
sketch2.addConstraint(Sketcher.Constraint("DistanceX", 13, 2, -1, 1, Q("2.43062 mm")))
sketch2.addConstraint(Sketcher.Constraint("DistanceX", 14, 2, -1, 1, Q("3.058669 mm")))
sketch2.addConstraint(Sketcher.Constraint("DistanceY", 14, 2, -1, 1, Q("2.400419 mm")))
sketch2.addConstraint(Sketcher.Constraint("DistanceX", 16, 2, -1, 1, Q("4.932808 mm")))
sketch2.addConstraint(Sketcher.Constraint("DistanceX", 17, 1, -1, 1, Q("5.49714 mm")))
sketch2.addConstraint(Sketcher.Constraint("DistanceY", 17, 1, -1, 1, Q("2.716029 mm")))
sketch2.addConstraint(Sketcher.Constraint("DistanceX", 19, 1, -1, 1, Q("5.461158 mm")))
sketch2.addConstraint(Sketcher.Constraint("DistanceY", 21, 2, -1, 1, Q("0.420172 mm")))
sketch2.addConstraint(Sketcher.Constraint("DistanceX", 22, 2, -1, 1, Q("3.860159 mm")))
sketch2.addConstraint(Sketcher.Constraint("DistanceX", 23, 2, -1, 1, Q("4.08854 mm")))
sketch2.addConstraint(Sketcher.Constraint("DistanceY", -1, 1, 26, 2, Q("2.76133 mm")))
sketch2.addConstraint(Sketcher.Constraint("DistanceY", -1, 1, 27, 1, Q("2.855581 mm")))
sketch2.addConstraint(Sketcher.Constraint("DistanceY", -1, 1, 29, 2, Q("2.43062 mm")))
sketch2.addConstraint(Sketcher.Constraint("DistanceX", 30, 2, -1, 1, Q("2.400419 mm")))
sketch2.addConstraint(Sketcher.Constraint("Distance", 0, Q("1.582443 mm")))
sketch2.addConstraint(Sketcher.Constraint("DistanceX", -1, 1, 1, 3, Q("2.291765 mm")))
sketch2.addConstraint(Sketcher.Constraint("DistanceX", -1, 1, 5, 3, Q("0.414012 mm")))
sketch2.addConstraint(Sketcher.Constraint("DistanceX", 9, 3, -1, 1, Q("1.966542 mm")))
sketch2.addConstraint(Sketcher.Constraint("DistanceX", 11, 3, -1, 1, Q("2.283794 mm")))
sketch2.addConstraint(Sketcher.Constraint("DistanceY", 11, 3, -1, 1, Q("5.071577 mm")))
sketch2.addConstraint(Sketcher.Constraint("DistanceX", 15, 3, -1, 1, Q("3.309607 mm")))
sketch2.addConstraint(Sketcher.Constraint("DistanceX", 17, 3, -1, 1, Q("5.072876 mm")))
sketch2.addConstraint(Sketcher.Constraint("DistanceX", 25, 3, -1, 1, Q("5.207587 mm")))
pad1 = body.newObject("PartDesign::Pad", "Pad")
pad1.Profile = sketch2
pad1.Length = 12
pad1.Reversed = True

# Sketch on XY plane
sketch3 = body.newObject("Sketcher::SketchObject", "Sketch002")
sketch3.AttachmentSupport = (doc.getObject("XY_Plane"), [""])
sketch3.MapMode = "FlatFace"
sketch3.addGeometry(Part.Circle(Vector(0, 0, 0), Vector(0, 0, 1), 10), False)
sketch3.addConstraint(Sketcher.Constraint("Coincident", 0, 3, -1, 1))
sketch3.addConstraint(Sketcher.Constraint("Diameter", 0, Q("20 mm")))
pad2 = body.newObject("PartDesign::Pad", "Pad001")
pad2.Profile = sketch3
pad2.Length = 9
pad2.Reversed = True

# Sketch on XY plane
sketch4 = body.newObject("Sketcher::SketchObject", "Sketch003")
sketch4.AttachmentSupport = (doc.getObject("XY_Plane"), [""])
sketch4.MapMode = "FlatFace"
sketch4.AttachmentOffset = App.Placement(Vector(0, 0, -9), App.Rotation())
sketch4.addGeometry(Part.Circle(Vector(0, 0, 0), Vector(0, 0, 1), 2.5), False)
sketch4.addConstraint(Sketcher.Constraint("Coincident", 0, 3, -1, 1))
sketch4.addConstraint(Sketcher.Constraint("Diameter", 0, Q("5 mm")))
doc.recompute()
hole = body.newObject("PartDesign::Hole", "Hole")
hole.Profile = sketch4
hole.ThreadType = "None"
hole.Diameter = 5
hole.DepthType = "Dimension"
hole.Depth = 23
hole.DrillPoint = "Flat"
hole.Reversed = True

doc.recompute()
